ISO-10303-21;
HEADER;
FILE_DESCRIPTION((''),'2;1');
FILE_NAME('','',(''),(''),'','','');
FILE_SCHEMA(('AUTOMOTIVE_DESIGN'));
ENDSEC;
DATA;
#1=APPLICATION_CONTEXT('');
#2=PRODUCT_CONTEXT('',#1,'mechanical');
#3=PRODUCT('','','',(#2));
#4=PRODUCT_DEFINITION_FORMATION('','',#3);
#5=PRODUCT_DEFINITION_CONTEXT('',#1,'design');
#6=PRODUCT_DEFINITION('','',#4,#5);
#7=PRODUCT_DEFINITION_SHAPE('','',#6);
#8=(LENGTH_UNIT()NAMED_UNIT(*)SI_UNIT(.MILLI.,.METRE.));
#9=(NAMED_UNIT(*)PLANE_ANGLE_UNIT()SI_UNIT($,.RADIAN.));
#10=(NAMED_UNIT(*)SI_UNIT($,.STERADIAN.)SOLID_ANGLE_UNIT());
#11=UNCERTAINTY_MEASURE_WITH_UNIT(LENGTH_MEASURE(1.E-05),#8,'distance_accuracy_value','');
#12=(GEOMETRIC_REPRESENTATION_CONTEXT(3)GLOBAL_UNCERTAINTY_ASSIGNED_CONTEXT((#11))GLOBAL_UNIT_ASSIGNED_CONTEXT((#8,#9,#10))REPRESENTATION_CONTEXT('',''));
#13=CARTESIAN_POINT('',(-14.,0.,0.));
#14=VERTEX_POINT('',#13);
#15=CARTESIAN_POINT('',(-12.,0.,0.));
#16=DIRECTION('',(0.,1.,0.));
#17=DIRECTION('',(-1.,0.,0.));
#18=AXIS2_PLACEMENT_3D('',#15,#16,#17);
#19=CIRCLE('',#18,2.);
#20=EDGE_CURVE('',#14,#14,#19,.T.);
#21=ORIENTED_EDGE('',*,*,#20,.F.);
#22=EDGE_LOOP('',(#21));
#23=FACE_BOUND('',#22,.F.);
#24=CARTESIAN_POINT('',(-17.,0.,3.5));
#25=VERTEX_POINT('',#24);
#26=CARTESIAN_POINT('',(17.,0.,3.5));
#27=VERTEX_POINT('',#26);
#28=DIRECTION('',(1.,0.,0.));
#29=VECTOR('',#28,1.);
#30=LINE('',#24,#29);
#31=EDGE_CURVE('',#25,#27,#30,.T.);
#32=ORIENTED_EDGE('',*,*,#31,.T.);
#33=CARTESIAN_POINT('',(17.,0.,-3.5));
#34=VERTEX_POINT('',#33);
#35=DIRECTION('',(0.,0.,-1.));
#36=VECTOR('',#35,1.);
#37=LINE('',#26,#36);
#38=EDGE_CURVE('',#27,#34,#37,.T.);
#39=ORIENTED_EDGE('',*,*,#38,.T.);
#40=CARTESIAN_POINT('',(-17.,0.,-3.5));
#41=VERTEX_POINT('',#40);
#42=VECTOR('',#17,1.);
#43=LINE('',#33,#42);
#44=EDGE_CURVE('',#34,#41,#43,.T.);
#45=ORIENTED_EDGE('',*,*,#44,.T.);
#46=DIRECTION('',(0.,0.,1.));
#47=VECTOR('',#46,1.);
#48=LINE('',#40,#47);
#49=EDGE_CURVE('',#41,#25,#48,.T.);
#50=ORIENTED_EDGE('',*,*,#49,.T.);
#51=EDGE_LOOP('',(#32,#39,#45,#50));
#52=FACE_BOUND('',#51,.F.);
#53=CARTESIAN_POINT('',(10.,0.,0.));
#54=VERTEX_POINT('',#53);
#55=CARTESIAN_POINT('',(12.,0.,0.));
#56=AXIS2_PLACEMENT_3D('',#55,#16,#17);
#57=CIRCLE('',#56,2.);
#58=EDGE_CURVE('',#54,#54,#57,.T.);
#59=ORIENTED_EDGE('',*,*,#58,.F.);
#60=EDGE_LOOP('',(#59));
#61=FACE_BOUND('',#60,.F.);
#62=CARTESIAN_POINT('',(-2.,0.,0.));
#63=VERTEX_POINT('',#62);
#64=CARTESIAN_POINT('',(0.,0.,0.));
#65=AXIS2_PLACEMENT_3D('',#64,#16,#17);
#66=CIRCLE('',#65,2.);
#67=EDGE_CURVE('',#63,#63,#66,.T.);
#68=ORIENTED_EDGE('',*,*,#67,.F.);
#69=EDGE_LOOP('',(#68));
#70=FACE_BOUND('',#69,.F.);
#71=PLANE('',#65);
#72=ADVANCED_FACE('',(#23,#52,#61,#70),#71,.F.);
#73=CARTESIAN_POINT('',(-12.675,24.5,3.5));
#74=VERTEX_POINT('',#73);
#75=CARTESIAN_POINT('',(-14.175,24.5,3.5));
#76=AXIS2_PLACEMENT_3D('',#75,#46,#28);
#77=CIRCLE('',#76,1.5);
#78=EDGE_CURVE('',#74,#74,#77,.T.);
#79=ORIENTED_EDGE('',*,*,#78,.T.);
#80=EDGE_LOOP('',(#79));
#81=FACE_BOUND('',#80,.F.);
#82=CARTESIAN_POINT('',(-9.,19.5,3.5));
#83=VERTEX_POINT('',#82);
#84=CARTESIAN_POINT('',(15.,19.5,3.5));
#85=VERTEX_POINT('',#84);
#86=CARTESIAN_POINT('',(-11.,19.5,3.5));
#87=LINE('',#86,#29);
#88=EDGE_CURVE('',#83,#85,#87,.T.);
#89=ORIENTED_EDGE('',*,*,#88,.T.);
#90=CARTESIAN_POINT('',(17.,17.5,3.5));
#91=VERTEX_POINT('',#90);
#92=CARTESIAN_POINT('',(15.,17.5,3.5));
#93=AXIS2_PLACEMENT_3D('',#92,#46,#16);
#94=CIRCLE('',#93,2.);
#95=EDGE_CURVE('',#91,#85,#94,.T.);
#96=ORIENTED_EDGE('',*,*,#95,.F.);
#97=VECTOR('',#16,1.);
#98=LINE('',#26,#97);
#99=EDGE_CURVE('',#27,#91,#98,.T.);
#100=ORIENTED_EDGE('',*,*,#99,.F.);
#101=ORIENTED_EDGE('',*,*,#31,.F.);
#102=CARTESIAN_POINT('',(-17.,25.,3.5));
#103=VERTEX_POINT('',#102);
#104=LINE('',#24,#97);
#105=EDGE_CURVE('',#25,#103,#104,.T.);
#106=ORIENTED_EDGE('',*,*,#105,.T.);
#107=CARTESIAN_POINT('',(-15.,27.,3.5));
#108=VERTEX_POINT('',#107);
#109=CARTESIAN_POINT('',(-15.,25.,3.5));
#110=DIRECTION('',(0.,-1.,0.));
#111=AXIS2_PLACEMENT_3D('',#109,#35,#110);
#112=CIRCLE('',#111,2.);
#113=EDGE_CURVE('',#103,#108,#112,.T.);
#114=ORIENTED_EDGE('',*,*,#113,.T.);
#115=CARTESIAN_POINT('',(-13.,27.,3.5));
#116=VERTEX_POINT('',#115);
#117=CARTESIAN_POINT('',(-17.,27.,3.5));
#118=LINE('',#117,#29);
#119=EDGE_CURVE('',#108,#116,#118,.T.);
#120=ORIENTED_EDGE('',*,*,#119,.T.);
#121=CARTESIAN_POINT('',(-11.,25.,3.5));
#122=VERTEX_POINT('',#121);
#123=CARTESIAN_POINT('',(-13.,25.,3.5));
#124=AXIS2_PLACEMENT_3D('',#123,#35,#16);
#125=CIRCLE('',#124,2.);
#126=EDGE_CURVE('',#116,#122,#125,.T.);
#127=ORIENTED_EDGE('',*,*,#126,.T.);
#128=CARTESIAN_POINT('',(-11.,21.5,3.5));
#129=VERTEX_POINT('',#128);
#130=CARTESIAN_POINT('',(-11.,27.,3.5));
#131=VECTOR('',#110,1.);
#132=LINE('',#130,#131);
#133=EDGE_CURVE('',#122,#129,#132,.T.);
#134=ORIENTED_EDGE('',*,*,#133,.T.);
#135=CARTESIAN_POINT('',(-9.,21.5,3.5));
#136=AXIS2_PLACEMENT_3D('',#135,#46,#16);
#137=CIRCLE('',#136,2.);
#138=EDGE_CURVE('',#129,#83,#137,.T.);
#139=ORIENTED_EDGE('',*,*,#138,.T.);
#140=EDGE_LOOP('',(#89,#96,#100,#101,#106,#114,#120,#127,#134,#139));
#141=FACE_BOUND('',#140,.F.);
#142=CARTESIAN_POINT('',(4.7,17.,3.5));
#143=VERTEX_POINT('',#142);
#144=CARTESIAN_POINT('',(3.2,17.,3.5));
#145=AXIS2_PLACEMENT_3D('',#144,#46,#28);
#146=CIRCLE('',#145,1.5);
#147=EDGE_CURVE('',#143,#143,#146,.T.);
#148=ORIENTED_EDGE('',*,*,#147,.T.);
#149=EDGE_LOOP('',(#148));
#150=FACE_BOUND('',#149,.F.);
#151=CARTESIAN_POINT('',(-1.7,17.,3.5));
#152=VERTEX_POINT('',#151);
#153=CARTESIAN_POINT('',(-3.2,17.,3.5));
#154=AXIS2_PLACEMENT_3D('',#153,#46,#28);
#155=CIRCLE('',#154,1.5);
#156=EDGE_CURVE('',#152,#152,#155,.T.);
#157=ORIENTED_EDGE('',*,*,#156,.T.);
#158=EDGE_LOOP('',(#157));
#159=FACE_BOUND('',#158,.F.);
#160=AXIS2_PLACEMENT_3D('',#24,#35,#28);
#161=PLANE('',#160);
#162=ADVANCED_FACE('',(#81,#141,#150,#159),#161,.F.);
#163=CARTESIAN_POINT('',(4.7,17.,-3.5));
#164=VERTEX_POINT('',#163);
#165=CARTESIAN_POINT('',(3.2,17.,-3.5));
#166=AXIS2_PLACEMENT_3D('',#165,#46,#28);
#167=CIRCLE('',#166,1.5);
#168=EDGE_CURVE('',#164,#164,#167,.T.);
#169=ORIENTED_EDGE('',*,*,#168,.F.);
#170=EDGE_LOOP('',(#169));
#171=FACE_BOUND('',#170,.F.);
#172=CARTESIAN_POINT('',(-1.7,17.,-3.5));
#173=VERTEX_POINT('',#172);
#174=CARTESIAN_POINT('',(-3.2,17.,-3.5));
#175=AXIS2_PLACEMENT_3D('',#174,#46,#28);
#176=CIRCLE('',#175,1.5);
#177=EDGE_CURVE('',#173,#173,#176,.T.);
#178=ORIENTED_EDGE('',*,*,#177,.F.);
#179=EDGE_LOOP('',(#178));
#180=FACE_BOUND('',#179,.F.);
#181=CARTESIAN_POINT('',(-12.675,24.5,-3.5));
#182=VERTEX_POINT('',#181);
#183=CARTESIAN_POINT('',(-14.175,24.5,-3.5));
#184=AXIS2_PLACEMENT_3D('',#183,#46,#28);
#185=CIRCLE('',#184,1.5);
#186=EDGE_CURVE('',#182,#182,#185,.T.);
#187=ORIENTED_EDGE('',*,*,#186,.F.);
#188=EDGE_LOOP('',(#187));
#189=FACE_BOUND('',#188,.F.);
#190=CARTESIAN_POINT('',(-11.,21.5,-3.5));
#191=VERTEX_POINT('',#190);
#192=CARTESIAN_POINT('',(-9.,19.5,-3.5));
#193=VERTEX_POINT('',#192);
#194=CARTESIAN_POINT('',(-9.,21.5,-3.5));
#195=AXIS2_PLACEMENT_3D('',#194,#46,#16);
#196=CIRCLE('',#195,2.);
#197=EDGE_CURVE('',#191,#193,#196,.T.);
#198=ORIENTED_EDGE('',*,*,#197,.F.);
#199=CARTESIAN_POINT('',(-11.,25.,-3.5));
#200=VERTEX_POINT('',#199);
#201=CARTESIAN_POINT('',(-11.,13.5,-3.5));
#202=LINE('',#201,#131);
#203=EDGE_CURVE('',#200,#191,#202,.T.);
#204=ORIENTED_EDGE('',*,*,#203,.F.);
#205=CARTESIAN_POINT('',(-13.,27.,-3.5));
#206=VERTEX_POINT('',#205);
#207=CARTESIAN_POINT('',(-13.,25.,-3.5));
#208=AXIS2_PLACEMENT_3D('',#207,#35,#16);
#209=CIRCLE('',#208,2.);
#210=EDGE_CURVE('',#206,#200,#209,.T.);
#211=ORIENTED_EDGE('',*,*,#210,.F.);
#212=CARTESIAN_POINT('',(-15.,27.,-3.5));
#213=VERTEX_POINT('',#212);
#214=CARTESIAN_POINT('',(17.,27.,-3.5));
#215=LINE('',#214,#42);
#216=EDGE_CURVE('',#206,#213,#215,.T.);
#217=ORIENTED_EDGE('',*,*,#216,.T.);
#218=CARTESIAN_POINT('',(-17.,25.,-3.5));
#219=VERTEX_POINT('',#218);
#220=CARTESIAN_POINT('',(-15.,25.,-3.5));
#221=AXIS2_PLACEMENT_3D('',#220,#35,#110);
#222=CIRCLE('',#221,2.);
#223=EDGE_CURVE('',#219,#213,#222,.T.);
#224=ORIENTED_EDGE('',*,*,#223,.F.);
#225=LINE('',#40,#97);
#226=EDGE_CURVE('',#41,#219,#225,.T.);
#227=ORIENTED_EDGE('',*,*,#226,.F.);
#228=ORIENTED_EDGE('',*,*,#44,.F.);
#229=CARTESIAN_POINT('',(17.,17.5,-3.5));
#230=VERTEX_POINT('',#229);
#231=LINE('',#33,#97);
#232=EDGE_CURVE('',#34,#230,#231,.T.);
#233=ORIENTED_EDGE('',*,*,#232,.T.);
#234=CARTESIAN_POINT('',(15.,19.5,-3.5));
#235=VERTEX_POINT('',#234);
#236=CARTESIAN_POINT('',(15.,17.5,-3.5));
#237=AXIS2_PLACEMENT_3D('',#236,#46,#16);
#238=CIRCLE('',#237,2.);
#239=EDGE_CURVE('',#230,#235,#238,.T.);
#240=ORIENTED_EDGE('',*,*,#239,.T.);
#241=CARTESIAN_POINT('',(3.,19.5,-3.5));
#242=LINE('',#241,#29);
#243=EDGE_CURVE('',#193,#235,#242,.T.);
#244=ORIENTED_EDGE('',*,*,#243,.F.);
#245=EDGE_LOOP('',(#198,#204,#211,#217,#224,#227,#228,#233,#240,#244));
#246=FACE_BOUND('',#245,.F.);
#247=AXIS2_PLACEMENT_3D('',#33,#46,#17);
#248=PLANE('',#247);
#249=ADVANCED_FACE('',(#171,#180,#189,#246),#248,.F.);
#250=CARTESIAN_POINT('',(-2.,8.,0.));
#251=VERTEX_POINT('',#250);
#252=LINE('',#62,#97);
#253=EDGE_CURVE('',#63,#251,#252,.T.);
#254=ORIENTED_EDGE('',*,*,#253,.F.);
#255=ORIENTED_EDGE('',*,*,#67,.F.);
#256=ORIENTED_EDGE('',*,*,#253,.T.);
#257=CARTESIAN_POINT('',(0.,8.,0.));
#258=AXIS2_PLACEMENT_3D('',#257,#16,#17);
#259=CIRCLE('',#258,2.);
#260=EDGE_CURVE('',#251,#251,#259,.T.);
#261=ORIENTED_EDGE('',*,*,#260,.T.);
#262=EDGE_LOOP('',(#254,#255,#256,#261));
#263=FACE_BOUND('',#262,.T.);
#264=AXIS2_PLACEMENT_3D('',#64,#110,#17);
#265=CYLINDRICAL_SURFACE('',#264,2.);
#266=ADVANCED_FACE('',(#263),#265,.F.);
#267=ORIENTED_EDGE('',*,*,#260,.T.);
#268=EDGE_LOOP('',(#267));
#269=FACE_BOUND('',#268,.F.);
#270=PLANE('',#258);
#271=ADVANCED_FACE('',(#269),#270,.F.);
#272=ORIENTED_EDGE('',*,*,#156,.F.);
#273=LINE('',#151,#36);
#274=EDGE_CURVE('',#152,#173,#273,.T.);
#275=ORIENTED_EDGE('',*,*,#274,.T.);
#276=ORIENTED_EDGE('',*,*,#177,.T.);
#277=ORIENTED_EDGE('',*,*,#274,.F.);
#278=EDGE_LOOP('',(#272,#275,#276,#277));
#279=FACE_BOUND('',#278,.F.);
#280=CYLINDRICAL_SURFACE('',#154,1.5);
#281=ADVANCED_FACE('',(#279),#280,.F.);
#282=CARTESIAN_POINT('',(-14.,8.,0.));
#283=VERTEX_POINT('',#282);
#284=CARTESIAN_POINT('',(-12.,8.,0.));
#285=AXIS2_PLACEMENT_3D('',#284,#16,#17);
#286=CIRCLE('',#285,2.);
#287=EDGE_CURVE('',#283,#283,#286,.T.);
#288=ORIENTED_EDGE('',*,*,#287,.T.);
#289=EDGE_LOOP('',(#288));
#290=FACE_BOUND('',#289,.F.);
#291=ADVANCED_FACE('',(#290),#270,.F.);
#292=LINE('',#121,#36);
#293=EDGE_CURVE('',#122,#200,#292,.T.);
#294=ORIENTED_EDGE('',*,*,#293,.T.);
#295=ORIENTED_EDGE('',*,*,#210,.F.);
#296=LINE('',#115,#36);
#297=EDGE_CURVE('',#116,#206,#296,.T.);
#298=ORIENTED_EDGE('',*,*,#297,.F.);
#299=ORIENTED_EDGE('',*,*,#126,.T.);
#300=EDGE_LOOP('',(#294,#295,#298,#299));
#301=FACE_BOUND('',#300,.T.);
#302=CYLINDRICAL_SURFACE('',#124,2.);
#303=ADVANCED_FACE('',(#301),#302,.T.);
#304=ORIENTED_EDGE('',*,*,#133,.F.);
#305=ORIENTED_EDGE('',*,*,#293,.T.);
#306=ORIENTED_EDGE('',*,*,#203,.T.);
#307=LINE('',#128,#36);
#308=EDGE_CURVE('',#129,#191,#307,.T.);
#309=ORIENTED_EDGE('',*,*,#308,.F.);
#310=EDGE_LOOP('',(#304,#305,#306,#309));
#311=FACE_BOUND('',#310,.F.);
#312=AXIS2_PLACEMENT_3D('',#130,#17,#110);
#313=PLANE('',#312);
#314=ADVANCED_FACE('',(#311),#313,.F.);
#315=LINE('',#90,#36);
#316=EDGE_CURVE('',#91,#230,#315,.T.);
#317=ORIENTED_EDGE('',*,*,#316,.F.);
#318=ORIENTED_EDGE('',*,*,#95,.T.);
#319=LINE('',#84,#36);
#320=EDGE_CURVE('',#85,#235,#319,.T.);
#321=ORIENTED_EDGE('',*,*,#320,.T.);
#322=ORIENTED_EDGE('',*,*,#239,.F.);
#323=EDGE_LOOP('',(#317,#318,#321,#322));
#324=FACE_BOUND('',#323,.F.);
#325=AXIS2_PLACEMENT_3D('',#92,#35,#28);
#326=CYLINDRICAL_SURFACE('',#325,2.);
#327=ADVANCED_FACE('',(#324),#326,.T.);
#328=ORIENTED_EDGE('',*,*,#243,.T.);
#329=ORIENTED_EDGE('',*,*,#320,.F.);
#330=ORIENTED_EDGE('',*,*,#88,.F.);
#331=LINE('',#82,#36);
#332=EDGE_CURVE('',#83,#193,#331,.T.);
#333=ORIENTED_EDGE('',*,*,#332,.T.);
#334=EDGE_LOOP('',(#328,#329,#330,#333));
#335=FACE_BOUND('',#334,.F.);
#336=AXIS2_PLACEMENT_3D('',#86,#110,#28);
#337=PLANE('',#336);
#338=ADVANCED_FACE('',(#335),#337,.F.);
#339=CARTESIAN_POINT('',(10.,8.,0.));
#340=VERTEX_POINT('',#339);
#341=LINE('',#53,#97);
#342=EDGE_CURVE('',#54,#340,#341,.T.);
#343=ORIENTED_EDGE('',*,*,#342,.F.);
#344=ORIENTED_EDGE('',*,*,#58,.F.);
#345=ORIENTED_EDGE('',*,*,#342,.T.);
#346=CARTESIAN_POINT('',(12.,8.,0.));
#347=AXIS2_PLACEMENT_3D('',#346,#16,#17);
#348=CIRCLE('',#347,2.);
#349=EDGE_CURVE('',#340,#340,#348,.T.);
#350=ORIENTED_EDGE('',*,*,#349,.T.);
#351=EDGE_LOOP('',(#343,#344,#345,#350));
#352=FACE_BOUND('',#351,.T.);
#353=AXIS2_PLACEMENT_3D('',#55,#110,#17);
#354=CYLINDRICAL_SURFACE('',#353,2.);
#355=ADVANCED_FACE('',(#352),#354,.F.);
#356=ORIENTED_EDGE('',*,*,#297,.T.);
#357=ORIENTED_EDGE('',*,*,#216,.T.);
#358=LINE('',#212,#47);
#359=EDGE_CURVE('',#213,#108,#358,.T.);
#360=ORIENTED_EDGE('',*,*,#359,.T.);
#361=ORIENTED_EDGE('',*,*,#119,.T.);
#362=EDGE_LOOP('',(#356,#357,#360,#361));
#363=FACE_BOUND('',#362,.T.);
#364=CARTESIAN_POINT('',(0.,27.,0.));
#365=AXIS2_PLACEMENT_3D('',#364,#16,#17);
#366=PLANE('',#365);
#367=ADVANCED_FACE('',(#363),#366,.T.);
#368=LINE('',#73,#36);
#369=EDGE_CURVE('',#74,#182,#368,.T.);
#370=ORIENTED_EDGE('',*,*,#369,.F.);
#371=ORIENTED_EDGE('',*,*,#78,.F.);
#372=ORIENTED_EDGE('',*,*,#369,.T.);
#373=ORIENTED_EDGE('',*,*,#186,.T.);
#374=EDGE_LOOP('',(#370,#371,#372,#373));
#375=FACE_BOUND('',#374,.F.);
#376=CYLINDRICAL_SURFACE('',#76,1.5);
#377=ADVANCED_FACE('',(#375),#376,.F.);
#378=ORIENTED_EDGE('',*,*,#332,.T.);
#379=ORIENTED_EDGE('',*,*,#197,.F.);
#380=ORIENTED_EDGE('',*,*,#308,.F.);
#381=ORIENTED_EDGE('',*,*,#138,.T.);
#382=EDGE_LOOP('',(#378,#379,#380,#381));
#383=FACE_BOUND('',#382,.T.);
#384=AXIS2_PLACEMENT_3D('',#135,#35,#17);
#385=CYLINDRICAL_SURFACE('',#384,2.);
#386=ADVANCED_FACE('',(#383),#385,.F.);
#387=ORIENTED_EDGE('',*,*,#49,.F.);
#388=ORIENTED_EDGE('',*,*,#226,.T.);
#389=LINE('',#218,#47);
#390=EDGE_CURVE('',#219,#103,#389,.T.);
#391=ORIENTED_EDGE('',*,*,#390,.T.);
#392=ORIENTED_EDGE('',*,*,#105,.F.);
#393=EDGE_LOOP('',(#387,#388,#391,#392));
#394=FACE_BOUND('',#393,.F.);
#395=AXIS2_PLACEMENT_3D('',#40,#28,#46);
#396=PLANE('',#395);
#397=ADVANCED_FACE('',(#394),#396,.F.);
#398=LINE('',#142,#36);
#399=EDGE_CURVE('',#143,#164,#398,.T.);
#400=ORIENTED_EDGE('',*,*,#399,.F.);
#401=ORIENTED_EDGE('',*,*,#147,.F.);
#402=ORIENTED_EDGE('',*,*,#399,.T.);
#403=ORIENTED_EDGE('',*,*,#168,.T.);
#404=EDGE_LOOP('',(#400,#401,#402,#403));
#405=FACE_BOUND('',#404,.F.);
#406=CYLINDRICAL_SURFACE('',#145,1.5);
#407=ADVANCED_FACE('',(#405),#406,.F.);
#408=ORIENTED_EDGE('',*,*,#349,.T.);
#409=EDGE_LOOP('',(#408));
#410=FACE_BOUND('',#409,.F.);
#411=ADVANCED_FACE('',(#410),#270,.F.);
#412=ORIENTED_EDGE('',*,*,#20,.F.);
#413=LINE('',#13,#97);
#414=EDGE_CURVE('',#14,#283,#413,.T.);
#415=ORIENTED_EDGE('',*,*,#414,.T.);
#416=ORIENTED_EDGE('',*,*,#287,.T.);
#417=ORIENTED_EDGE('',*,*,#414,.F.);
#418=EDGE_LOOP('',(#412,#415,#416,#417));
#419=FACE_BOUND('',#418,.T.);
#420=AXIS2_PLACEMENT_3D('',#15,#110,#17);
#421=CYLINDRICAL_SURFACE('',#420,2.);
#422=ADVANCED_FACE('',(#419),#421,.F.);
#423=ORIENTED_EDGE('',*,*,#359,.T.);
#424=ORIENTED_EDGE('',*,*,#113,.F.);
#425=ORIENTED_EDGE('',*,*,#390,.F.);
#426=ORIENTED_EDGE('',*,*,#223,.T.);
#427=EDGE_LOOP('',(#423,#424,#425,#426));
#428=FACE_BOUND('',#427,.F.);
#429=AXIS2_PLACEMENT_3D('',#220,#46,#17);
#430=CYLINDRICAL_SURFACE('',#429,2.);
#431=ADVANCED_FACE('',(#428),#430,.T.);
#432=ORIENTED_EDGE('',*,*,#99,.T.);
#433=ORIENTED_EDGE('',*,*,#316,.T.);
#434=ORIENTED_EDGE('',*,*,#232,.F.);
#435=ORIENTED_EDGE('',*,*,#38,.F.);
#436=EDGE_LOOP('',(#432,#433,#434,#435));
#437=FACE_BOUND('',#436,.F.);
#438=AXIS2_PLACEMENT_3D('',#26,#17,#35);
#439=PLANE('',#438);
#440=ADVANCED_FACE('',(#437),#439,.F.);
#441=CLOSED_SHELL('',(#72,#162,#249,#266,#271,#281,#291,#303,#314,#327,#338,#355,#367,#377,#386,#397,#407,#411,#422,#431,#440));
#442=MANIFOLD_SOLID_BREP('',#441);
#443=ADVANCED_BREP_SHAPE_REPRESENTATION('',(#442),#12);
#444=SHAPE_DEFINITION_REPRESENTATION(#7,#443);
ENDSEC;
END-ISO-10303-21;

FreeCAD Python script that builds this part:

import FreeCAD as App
import Part
import Sketcher
from FreeCAD import Vector


def edges_at(feature, points):
    """Names of the edges that pass closest to the given points."""
    edges = feature.Shape.Edges
    near = lambda p: min(range(len(edges)), key=lambda i: edges[i].distToShape(Part.Vertex(*p))[0])
    return sorted({f"Edge{near(p) + 1}" for p in points})


def add_polygon(sketch, points):
    """Adds a closed chain of lines whose ends are joined by coincident constraints."""
    first, n = sketch.GeometryCount, len(points)
    for a, b in zip(points, points[1:] + points[:1]):
        sketch.addGeometry(Part.LineSegment(App.Vector(*a, 0), App.Vector(*b, 0)), False)
    for i in range(n):
        sketch.addConstraint(Sketcher.Constraint("Coincident", first + i, 2, first + (i + 1) % n, 1))

doc = App.newDocument("Part")
body = doc.addObject("PartDesign::Body", "Body")

# Sketch on XZ plane
sketch1 = body.newObject("Sketcher::SketchObject", "Sketch")
sketch1.AttachmentSupport = (doc.getObject("XZ_Plane"), [""])
sketch1.MapMode = "FlatFace"
add_polygon(sketch1, [(-17, -4), (-17, 4), (17, 4), (17, -4)])  # lines 0-3
sketch1.addConstraint(Sketcher.Constraint("Vertical", 0))
sketch1.addConstraint(Sketcher.Constraint("Horizontal", 1))
sketch1.addConstraint(Sketcher.Constraint("Vertical", 2))
sketch1.addConstraint(Sketcher.Constraint("Horizontal", 3))
sketch1.addConstraint(Sketcher.Constraint("Symmetric", 0, 2, 2, 2, -1, 1))
sketch1.addConstraint(Sketcher.Constraint("DistanceX", 1, 1, 1, 2, 34.0))
sketch1.addConstraint(Sketcher.Constraint("DistanceY", 0, 1, 0, 2, 7.0))
pad1 = body.newObject("PartDesign::Pad", "Pad")
pad1.Profile = sketch1
pad1.Length = 27
pad1.Reversed = True

# Sketch on XZ plane
sketch2 = body.newObject("Sketcher::SketchObject", "Sketch001")
sketch2.AttachmentSupport = (doc.getObject("XZ_Plane"), [""])
sketch2.MapMode = "FlatFace"
sketch2.addGeometry(Part.Circle(Vector(0, 0, 0), Vector(0, 0, 1), 2), False)
sketch2.addGeometry(Part.Circle(Vector(-12, 0, 0), Vector(0, 0, 1), 2), False)
sketch2.addGeometry(Part.Circle(Vector(12, 0, 0), Vector(0, 0, 1), 2), False)
sketch2.addConstraint(Sketcher.Constraint("Coincident", 0, 3, -1, 1))
sketch2.addConstraint(Sketcher.Constraint("Equal", 0, 1))
sketch2.addConstraint(Sketcher.Constraint("Equal", 1, 2))
sketch2.addConstraint(Sketcher.Constraint("Symmetric", 1, 3, 2, 3, -1, 1))
sketch2.addConstraint(Sketcher.Constraint("PointOnObject", 1, 3, -1))
sketch2.addConstraint(Sketcher.Constraint("Diameter", 0, 4.0))
sketch2.addConstraint(Sketcher.Constraint("DistanceX", 1, 3, -1, 1, 12.0))
pocket1 = body.newObject("PartDesign::Pocket", "Pocket")
pocket1.Profile = sketch2
pocket1.Length = 8

# Sketch on XY plane
sketch3 = body.newObject("Sketcher::SketchObject", "Sketch002")
sketch3.AttachmentSupport = (doc.getObject("XY_Plane"), [""])
sketch3.MapMode = "FlatFace"
sketch3.AttachmentOffset = App.Placement(Vector(0, 0, 3.5), App.Rotation())
sketch3.addGeometry(Part.Circle(Vector(3.2, 17, 0), Vector(0, 0, 1), 1.5), False)
sketch3.addGeometry(Part.Circle(Vector(-3.2, 17, 0), Vector(0, 0, 1), 1.5), False)
sketch3.addGeometry(Part.Circle(Vector(-14.2, 24.5, 0), Vector(0, 0, 1), 1.5), False)
sketch3.addConstraint(Sketcher.Constraint("Equal", 0, 1))
sketch3.addConstraint(Sketcher.Constraint("Equal", 1, 2))
sketch3.addConstraint(Sketcher.Constraint("Symmetric", 0, 3, 1, 3, -2))
sketch3.addConstraint(Sketcher.Constraint("Diameter", 0, 3.0))
sketch3.addConstraint(Sketcher.Constraint("DistanceX", 1, 3, 0, 3, 6.4))
sketch3.addConstraint(Sketcher.Constraint("DistanceY", 1, 3, 2, 3, 7.5))
sketch3.addConstraint(Sketcher.Constraint("DistanceY", -1, 1, 0, 3, 17.0))
sketch3.addConstraint(Sketcher.Constraint("DistanceX", 2, 3, 1, 3, 10.975))
pocket2 = body.newObject("PartDesign::Pocket", "Pocket001")
pocket2.Profile = sketch3
pocket2.Type = "ThroughAll"

# Sketch on XY plane
sketch4 = body.newObject("Sketcher::SketchObject", "Sketch003")
sketch4.AttachmentSupport = (doc.getObject("XY_Plane"), [""])
sketch4.MapMode = "FlatFace"
sketch4.AttachmentOffset = App.Placement(Vector(0, 0, 3.5), App.Rotation())
add_polygon(sketch4, [(17, 20), (17, 27), (-11, 27), (-11, 20)])  # lines 0-3
sketch4.addConstraint(Sketcher.Constraint("Vertical", 0))
sketch4.addConstraint(Sketcher.Constraint("Horizontal", 1))
sketch4.addConstraint(Sketcher.Constraint("Vertical", 2))
sketch4.addConstraint(Sketcher.Constraint("Horizontal", 3))
sketch4.addConstraint(Sketcher.Constraint("DistanceX", 1, 2, 1, 1, 28.0))
sketch4.addConstraint(Sketcher.Constraint("DistanceY", 0, 1, 0, 2, 7.5))
sketch4.addConstraint(Sketcher.Constraint("DistanceX", -1, 1, 0, 2, 17.0))
sketch4.addConstraint(Sketcher.Constraint("DistanceY", -1, 1, 0, 2, 27.0))
pocket3 = body.newObject("PartDesign::Pocket", "Pocket002")
pocket3.Profile = sketch4
pocket3.Type = "ThroughAll"
doc.recompute()

fillet = body.newObject("PartDesign::Fillet", "Fillet")
fillet.Base = (pocket3, edges_at(pocket3, [
    (-17, 27, 0),
    (-11, 27, 0),
    (-11, 19.5, 0),
    (17, 19.5, 0),
]))
fillet.Radius = 2

doc.recompute()
